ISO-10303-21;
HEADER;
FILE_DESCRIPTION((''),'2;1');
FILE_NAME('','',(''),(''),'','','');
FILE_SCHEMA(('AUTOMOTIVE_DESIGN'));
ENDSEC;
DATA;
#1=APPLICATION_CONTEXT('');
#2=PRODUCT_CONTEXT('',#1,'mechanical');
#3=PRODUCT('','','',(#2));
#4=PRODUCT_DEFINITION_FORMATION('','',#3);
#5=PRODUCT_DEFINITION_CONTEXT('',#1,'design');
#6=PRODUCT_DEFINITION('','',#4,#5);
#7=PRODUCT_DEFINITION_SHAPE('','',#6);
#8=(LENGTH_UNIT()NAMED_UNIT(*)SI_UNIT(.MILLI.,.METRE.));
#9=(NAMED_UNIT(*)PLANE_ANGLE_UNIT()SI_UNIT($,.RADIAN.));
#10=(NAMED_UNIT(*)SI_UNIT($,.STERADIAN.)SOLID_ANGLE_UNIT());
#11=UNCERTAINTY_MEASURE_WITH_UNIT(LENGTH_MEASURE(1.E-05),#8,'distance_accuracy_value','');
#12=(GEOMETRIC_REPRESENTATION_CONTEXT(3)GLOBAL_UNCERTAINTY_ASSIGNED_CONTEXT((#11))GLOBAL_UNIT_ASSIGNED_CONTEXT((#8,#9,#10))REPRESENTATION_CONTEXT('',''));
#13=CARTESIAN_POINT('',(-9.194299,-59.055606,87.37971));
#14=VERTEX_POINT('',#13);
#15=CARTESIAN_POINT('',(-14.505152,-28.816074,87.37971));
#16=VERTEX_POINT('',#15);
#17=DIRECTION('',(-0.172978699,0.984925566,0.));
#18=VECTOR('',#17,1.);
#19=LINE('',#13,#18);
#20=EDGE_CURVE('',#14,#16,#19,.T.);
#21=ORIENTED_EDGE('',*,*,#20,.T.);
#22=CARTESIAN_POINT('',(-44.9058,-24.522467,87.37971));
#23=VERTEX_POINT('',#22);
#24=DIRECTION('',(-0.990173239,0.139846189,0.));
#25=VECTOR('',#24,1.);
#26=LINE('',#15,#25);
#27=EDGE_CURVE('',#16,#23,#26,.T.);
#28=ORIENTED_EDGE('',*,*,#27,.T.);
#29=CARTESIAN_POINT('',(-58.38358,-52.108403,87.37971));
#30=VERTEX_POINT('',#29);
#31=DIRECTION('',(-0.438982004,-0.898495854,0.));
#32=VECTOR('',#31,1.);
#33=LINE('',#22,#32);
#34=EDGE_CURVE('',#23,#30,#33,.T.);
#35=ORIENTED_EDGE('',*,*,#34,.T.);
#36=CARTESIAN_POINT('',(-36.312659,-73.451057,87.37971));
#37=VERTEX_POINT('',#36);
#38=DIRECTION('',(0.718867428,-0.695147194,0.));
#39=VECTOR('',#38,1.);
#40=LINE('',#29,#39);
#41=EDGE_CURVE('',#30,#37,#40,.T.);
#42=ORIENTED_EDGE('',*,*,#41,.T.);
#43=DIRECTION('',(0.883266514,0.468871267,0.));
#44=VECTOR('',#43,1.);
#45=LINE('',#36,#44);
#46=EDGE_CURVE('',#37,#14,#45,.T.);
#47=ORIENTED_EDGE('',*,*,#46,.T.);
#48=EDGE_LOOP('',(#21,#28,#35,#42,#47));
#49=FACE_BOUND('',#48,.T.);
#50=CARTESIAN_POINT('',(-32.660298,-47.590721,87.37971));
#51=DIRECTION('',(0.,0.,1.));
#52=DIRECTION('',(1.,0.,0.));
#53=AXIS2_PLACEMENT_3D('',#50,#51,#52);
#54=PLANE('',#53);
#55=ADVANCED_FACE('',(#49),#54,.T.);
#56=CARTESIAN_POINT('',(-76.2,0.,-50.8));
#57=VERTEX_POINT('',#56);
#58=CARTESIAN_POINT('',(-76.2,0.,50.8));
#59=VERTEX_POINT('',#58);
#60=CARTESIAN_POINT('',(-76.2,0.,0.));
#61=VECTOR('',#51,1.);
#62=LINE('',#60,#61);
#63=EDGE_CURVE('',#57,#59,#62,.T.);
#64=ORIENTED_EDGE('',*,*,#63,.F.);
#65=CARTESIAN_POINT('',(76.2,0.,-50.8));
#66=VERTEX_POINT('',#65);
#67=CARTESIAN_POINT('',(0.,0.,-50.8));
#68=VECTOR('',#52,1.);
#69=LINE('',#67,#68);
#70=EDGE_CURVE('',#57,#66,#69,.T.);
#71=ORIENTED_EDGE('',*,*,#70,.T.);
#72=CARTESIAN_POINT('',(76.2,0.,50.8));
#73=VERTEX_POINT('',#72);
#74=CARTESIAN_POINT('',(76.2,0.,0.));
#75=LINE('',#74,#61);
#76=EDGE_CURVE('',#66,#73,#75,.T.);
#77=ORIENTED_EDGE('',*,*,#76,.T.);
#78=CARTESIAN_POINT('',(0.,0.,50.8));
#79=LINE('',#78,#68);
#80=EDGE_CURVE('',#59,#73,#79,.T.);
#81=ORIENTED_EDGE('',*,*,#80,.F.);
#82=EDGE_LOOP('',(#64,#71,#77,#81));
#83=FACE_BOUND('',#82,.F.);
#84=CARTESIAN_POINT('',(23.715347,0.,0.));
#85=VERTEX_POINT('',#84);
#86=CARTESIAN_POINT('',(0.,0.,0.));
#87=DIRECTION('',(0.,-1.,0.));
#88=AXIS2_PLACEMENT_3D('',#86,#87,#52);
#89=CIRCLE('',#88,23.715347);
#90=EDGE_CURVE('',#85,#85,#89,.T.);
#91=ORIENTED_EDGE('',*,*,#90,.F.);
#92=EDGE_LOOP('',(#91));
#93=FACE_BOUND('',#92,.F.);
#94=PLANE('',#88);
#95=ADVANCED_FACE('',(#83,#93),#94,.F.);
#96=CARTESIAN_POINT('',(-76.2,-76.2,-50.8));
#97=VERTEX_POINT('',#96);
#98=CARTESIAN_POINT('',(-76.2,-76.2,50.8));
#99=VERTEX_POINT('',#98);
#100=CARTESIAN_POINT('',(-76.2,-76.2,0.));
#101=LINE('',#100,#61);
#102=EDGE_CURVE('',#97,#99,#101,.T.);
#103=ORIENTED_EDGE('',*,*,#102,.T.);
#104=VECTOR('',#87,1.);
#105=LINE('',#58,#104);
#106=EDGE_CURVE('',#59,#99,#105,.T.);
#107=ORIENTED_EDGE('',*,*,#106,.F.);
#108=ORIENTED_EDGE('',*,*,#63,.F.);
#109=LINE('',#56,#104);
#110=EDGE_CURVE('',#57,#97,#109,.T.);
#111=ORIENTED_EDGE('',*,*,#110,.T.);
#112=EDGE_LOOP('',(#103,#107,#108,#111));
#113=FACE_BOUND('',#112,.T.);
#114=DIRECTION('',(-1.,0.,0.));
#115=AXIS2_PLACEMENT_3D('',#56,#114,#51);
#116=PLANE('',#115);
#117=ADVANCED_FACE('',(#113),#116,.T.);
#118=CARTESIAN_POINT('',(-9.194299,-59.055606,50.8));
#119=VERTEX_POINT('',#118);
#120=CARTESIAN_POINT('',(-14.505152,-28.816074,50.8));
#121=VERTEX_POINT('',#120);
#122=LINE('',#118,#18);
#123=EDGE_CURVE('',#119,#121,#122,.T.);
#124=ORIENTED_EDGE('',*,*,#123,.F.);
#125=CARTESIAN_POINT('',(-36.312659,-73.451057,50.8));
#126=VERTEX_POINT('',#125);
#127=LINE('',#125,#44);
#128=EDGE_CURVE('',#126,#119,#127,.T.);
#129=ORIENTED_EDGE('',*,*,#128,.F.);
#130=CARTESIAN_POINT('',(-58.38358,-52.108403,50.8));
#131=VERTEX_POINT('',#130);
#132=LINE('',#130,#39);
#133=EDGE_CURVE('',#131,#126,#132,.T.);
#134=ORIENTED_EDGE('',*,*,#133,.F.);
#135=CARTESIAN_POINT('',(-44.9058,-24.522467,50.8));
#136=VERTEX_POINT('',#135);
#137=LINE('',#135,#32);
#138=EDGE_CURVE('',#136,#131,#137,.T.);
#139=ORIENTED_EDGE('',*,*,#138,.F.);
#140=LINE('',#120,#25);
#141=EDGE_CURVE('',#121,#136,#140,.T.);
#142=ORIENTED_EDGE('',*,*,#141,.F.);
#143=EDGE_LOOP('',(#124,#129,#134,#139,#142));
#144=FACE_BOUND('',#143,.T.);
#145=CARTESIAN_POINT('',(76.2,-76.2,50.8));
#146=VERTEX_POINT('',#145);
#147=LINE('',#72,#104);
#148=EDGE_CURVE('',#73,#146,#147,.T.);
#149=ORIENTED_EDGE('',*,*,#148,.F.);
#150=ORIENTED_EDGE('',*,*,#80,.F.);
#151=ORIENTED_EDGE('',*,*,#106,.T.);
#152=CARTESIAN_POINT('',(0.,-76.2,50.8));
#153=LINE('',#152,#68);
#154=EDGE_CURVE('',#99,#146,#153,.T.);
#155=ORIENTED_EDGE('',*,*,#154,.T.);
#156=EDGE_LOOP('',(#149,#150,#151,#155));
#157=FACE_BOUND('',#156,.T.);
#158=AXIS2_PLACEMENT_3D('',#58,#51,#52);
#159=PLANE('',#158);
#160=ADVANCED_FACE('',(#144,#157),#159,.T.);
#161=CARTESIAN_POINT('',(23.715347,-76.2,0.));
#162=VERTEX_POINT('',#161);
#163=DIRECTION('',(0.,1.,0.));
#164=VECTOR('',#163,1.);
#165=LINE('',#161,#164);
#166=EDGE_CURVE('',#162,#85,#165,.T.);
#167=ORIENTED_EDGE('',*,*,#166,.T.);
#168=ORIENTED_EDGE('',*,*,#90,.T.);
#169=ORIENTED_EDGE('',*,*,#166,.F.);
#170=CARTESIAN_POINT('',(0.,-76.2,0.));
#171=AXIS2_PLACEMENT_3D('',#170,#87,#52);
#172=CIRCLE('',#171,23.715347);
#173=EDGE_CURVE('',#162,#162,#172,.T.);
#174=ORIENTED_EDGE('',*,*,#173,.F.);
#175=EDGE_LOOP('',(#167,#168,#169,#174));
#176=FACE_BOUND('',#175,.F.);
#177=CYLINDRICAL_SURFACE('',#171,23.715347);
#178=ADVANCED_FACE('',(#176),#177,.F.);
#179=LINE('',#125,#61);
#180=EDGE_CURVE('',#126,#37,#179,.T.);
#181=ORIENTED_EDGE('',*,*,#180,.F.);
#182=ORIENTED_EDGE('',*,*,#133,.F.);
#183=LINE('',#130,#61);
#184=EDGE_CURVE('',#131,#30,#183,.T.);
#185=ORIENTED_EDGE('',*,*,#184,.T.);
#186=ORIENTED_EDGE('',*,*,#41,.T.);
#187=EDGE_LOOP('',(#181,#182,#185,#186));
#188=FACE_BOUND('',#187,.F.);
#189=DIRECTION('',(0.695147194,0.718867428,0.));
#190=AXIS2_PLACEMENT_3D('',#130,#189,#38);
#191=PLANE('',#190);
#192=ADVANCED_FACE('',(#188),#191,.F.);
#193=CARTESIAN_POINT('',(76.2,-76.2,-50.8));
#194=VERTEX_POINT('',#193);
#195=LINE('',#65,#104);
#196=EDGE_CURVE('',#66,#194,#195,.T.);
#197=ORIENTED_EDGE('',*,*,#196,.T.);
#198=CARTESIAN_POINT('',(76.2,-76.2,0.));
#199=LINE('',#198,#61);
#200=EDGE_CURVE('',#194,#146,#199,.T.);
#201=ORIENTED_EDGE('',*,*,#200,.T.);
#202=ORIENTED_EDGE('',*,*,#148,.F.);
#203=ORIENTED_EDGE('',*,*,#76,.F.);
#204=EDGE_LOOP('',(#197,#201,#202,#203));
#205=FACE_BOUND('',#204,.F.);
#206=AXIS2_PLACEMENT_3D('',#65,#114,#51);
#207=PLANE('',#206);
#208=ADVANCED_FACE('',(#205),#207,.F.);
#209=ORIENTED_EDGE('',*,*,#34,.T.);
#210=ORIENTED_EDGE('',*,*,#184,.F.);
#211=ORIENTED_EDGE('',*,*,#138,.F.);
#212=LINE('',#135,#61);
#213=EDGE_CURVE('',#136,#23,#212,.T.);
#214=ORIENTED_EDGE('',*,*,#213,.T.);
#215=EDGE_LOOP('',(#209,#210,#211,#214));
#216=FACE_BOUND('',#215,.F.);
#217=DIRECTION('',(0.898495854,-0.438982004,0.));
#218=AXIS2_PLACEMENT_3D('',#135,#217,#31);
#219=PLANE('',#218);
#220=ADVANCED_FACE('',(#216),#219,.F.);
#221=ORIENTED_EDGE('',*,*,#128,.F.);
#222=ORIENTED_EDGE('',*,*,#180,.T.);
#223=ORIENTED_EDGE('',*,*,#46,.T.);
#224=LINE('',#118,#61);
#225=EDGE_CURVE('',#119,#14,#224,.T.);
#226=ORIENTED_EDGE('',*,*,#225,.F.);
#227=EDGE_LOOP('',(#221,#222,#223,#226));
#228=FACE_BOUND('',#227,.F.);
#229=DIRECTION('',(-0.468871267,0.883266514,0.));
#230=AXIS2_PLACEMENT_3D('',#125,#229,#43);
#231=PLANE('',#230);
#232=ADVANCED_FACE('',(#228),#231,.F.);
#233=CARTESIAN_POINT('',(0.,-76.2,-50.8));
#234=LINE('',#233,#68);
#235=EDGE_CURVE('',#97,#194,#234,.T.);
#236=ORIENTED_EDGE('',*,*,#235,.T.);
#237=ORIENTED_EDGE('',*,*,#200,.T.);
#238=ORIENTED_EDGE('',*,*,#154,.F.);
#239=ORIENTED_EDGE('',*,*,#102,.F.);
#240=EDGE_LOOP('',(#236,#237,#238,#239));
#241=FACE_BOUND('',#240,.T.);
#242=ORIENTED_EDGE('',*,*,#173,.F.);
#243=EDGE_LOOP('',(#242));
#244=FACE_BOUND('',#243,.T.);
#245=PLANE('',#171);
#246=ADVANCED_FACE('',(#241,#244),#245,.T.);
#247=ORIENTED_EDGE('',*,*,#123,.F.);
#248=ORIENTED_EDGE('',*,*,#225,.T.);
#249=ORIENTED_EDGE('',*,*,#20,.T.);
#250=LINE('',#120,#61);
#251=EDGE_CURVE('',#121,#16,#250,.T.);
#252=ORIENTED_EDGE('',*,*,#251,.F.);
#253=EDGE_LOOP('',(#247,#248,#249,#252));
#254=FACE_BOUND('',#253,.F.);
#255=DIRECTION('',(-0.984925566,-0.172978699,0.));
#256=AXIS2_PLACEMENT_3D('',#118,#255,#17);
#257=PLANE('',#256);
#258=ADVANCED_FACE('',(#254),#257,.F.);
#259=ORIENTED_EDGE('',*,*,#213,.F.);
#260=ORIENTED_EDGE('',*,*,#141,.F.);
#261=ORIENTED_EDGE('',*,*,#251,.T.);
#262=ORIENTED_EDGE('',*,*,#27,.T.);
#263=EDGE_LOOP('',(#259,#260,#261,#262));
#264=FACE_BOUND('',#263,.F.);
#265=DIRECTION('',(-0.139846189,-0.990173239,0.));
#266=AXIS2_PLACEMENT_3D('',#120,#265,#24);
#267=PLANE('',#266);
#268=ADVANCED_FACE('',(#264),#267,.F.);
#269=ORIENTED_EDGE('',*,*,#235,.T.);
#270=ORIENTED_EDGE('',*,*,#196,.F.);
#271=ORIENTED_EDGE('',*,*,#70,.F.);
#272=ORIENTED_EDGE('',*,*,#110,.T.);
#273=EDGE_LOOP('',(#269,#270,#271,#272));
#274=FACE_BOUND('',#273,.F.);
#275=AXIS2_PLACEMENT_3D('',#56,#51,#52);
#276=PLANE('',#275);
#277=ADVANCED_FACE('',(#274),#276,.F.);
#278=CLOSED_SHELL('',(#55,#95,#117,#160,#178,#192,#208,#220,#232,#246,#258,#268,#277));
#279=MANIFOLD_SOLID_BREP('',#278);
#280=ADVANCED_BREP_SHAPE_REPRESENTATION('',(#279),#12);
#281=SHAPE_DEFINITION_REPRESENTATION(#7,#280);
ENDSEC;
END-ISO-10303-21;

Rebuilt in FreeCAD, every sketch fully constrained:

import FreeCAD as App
import Part
import Sketcher

V = App.Vector
Q = App.Units.Quantity


def add_polygon(sketch, points):
    """Adds a closed chain of lines whose ends are joined by coincident constraints."""
    first, n = sketch.GeometryCount, len(points)
    for a, b in zip(points, points[1:] + points[:1]):
        sketch.addGeometry(Part.LineSegment(App.Vector(*a, 0), App.Vector(*b, 0)), False)
    for i in range(n):
        sketch.addConstraint(Sketcher.Constraint("Coincident", first + i, 2, first + (i + 1) % n, 1))

doc = App.newDocument("Part")
body = doc.addObject("PartDesign::Body", "Body")

sketch1 = body.newObject("Sketcher::SketchObject", "Sketch")
sketch1.AttachmentSupport = (doc.getObject("XZ_Plane"), [""])
sketch1.MapMode = "FlatFace"
add_polygon(sketch1, [(-76, 51), (-76, -51), (76, -51), (76, 51)])
sketch1.addConstraint(Sketcher.Constraint("Vertical", 0))
sketch1.addConstraint(Sketcher.Constraint("Horizontal", 1))
sketch1.addConstraint(Sketcher.Constraint("Vertical", 2))
sketch1.addConstraint(Sketcher.Constraint("Horizontal", 3))
sketch1.addConstraint(Sketcher.Constraint("Symmetric", 0, 2, 2, 2, -1, 1))
sketch1.addConstraint(Sketcher.Constraint("DistanceX", 1, 1, 1, 2, Q("6 in")))
sketch1.addConstraint(Sketcher.Constraint("DistanceY", 0, 2, 0, 1, Q("4 in")))
pad1 = body.newObject("PartDesign::Pad", "Pad")
pad1.Profile = sketch1
pad1.Length = Q("3 in")

sketch2 = body.newObject("Sketcher::SketchObject", "Sketch001")
sketch2.AttachmentSupport = (doc.getObject("XZ_Plane"), [""])
sketch2.MapMode = "FlatFace"
sketch2.AttachmentOffset = App.Placement(V(0, 0, 3 * 25.4), App.Rotation())
sketch2.addGeometry(Part.Circle(V(0, 0, 0), V(0, 0, 1), 24), False)
sketch2.addConstraint(Sketcher.Constraint("Coincident", 0, 3, -1, 1))
sketch2.addConstraint(Sketcher.Constraint("Diameter", 0, 47.430694))
pocket1 = body.newObject("PartDesign::Pocket", "Pocket")
pocket1.Profile = sketch2
pocket1.Type = "ThroughAll"

sketch3 = body.newObject("Sketcher::SketchObject", "Sketch002")
sketch3.AttachmentSupport = (doc.getObject("XY_Plane"), [""])
sketch3.MapMode = "FlatFace"
sketch3.AttachmentOffset = App.Placement(V(0, 0, 2 * 25.4), App.Rotation())
add_polygon(sketch3, [(-15, -29), (-45, -25), (-58, -52), (-36, -73), (-9, -59)])
sketch3.addConstraint(Sketcher.Constraint("Equal", 0, 1))
sketch3.addConstraint(Sketcher.Constraint("Equal", 1, 2))
sketch3.addConstraint(Sketcher.Constraint("Equal", 2, 3))
sketch3.addConstraint(Sketcher.Constraint("Equal", 3, 4))
sketch3.addConstraint(Sketcher.Constraint("DistanceX", 0, 2, -1, 1, 44.9058))
sketch3.addConstraint(Sketcher.Constraint("DistanceX", 3, 2, -1, 1, 9.194299))
sketch3.addConstraint(Sketcher.Constraint("DistanceX", 1, 2, -1, 1, 58.38358))
sketch3.addConstraint(Sketcher.Constraint("DistanceX", 2, 2, -1, 1, 36.312659))
sketch3.addConstraint(Sketcher.Constraint("DistanceY", 2, 2, 0, 2, 48.92859))
sketch3.addConstraint(Sketcher.Constraint("DistanceY", 0, 2, -1, 1, 24.522467))
pad2 = body.newObject("PartDesign::Pad", "Pad001")
pad2.Profile = sketch3
pad2.Length = 36.57971

doc.recompute()
